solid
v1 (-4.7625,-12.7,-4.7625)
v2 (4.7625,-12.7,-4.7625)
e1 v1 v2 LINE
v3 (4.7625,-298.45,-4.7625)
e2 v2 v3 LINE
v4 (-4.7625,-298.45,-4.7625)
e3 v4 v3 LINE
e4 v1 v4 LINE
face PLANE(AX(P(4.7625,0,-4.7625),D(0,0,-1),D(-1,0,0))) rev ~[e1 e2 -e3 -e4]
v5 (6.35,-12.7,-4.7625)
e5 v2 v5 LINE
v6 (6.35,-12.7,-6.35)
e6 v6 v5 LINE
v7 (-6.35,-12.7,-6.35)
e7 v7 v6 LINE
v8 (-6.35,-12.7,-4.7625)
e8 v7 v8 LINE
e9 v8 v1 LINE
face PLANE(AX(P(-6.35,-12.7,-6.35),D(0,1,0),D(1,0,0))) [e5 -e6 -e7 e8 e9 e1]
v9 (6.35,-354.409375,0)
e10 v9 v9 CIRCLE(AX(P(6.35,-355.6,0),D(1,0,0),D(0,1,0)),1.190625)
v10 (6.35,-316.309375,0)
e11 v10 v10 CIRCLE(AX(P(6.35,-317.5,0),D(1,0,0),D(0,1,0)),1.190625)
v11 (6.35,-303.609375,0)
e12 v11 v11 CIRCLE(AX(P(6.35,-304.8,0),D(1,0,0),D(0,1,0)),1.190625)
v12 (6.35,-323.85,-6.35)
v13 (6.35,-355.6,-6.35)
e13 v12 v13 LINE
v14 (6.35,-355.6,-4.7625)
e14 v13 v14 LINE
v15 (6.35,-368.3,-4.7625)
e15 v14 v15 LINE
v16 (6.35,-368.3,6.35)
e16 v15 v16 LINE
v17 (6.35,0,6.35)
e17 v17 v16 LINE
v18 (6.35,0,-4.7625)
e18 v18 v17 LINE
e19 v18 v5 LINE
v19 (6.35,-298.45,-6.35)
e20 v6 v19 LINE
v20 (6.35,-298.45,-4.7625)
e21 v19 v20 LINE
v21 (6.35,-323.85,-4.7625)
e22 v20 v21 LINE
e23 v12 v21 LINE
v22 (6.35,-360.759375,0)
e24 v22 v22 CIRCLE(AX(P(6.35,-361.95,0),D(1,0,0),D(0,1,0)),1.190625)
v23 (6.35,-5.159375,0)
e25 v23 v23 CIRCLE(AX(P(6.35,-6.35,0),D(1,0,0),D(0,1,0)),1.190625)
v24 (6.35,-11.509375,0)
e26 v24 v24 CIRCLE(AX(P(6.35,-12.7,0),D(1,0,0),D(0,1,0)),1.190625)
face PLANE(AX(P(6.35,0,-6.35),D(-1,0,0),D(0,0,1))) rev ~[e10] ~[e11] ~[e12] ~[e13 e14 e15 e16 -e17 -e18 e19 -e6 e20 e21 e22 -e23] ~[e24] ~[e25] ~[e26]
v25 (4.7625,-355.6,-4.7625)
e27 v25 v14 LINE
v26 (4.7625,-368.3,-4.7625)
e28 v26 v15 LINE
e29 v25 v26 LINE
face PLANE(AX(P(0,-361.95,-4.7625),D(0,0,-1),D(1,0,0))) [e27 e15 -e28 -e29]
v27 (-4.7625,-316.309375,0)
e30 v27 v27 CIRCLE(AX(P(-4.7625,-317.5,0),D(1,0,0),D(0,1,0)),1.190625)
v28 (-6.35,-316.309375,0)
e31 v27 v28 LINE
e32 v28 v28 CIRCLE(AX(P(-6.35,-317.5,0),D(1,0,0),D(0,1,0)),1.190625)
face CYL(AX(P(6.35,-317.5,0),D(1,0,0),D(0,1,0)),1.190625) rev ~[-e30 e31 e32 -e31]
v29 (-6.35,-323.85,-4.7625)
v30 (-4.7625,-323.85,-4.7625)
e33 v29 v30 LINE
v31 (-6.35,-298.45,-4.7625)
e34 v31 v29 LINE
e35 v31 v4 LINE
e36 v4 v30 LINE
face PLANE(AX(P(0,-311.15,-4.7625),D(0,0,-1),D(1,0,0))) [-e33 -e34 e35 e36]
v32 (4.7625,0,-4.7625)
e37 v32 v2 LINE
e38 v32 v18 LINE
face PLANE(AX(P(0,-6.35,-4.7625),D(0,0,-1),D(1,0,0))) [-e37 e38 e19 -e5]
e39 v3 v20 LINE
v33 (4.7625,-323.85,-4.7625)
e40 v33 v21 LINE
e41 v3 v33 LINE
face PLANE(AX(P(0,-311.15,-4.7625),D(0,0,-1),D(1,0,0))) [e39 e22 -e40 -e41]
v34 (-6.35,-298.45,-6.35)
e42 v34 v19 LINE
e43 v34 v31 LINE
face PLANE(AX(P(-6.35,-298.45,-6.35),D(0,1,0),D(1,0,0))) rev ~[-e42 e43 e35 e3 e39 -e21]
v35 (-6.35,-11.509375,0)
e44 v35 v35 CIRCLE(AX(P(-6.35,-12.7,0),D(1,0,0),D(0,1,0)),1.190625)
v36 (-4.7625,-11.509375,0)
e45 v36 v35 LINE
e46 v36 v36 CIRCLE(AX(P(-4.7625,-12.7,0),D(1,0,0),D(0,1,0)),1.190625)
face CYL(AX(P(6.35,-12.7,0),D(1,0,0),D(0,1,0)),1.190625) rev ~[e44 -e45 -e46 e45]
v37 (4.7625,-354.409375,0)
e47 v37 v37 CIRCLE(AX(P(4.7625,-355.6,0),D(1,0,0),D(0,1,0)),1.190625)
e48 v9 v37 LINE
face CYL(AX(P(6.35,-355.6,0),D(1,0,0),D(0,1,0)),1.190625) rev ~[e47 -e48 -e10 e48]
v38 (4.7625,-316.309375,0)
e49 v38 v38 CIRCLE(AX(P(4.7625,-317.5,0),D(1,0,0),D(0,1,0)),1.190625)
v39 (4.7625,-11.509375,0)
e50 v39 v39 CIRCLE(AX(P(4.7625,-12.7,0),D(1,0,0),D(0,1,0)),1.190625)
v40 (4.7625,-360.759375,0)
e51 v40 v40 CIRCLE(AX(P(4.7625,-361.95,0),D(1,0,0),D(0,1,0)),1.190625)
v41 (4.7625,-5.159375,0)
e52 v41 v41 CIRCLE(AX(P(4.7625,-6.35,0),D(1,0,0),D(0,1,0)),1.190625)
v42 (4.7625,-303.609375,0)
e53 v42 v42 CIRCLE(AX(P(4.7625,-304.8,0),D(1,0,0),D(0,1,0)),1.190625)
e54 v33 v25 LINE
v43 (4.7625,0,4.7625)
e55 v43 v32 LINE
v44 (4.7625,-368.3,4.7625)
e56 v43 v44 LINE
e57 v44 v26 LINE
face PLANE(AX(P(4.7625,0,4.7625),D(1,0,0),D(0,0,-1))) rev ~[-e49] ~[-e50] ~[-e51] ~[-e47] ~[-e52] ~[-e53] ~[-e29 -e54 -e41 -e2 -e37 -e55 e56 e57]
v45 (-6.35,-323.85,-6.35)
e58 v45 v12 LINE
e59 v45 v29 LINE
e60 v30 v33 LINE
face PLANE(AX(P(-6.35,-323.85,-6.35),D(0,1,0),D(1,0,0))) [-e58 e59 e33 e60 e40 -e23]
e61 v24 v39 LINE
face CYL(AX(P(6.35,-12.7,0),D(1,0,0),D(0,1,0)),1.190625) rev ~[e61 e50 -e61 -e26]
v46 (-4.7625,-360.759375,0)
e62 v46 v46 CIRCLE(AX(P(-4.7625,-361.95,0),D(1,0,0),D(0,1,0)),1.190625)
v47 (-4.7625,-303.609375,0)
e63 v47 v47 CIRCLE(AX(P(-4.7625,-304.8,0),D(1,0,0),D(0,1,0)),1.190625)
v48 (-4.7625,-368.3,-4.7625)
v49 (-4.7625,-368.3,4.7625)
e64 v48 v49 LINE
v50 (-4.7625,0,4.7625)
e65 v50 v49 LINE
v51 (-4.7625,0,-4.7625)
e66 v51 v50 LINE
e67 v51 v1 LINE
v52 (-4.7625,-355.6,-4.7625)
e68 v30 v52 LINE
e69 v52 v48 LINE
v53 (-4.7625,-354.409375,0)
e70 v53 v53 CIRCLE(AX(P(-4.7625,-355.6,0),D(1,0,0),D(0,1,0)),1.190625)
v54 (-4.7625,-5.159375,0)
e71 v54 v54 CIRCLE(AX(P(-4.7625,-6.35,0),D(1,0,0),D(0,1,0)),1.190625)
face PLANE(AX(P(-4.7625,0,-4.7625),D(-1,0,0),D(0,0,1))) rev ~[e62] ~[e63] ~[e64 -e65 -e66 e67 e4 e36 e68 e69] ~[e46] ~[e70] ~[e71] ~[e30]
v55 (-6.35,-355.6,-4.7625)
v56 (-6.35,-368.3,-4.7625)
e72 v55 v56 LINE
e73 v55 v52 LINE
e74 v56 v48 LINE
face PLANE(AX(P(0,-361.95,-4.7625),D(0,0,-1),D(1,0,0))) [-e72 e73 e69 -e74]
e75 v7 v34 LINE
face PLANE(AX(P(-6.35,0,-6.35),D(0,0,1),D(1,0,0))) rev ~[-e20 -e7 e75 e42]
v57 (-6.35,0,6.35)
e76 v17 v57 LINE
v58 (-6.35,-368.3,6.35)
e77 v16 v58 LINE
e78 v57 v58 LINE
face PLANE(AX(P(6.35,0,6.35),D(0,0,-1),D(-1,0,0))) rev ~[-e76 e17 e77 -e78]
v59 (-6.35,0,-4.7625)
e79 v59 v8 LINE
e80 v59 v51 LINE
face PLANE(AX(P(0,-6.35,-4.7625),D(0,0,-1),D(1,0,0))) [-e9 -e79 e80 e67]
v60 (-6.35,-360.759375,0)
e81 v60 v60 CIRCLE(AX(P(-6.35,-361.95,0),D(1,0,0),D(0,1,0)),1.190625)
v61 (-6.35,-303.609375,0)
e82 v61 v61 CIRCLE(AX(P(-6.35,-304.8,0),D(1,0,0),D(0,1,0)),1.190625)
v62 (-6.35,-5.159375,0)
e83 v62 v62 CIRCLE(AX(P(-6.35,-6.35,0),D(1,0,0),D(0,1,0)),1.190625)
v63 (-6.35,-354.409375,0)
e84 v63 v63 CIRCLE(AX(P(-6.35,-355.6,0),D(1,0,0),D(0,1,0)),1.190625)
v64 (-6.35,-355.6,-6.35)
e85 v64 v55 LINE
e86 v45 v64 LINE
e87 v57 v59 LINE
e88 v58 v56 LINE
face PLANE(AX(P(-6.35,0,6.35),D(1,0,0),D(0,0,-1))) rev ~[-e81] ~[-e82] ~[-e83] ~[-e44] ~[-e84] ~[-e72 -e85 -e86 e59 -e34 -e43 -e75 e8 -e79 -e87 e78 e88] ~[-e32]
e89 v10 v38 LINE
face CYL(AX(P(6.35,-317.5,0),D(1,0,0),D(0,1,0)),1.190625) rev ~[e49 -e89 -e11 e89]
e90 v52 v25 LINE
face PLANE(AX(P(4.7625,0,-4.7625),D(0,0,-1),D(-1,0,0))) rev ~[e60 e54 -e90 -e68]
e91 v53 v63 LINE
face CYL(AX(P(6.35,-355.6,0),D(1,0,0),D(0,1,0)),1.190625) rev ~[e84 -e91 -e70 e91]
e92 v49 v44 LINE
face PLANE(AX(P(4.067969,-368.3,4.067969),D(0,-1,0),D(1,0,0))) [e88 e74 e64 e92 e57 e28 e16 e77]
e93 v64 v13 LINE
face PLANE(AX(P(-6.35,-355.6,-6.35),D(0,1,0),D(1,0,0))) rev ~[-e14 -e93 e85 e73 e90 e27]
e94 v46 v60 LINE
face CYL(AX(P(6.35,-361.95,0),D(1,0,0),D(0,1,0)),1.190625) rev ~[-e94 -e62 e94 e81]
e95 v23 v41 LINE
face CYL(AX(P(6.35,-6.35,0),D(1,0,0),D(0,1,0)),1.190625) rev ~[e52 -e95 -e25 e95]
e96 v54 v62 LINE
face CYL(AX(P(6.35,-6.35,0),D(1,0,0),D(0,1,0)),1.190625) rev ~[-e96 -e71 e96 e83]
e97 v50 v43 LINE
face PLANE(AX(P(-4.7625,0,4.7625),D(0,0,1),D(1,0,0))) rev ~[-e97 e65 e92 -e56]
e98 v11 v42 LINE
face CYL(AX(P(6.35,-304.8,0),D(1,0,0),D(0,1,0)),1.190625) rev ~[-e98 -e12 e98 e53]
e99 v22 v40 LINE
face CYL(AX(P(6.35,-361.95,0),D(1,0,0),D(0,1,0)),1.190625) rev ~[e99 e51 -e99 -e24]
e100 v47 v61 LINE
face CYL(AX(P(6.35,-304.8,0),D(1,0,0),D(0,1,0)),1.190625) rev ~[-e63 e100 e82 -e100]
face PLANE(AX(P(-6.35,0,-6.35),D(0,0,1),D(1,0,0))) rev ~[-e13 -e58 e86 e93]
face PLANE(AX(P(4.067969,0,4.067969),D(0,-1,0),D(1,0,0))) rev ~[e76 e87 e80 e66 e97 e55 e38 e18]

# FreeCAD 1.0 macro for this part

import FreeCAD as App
import Part
import Sketcher

V = App.Vector
Q = App.Units.Quantity


def add_polygon(sketch, points):
    """Adds a closed chain of lines whose ends are joined by coincident constraints."""
    first, n = sketch.GeometryCount, len(points)
    for a, b in zip(points, points[1:] + points[:1]):
        sketch.addGeometry(Part.LineSegment(App.Vector(*a, 0), App.Vector(*b, 0)), False)
    for i in range(n):
        sketch.addConstraint(Sketcher.Constraint("Coincident", first + i, 2, first + (i + 1) % n, 1))

doc = App.newDocument("Part")
body = doc.addObject("PartDesign::Body", "Body")

# Sketch on XZ plane
sketch1 = doc.addObject("Sketcher::SketchObject", "Sketch")
body.addObject(sketch1)
sketch1.AttachmentSupport = (doc.XZ_Plane, [""])
sketch1.MapMode = "FlatFace"
add_polygon(sketch1, [(6.35, 6.35), (-6.35, 6.35), (-6.35, -6.35), (6.35, -6.35)])  # lines 0-3
add_polygon(sketch1, [(4.7625, 4.7625), (4.7625, -4.7625), (-4.7625, -4.7625), (-4.7625, 4.7625)])  # lines 4-7
sketch1.addConstraint(Sketcher.Constraint("Horizontal", 0))
sketch1.addConstraint(Sketcher.Constraint("Vertical", 1))
sketch1.addConstraint(Sketcher.Constraint("Horizontal", 2))
sketch1.addConstraint(Sketcher.Constraint("Vertical", 3))
sketch1.addConstraint(Sketcher.Constraint("Vertical", 4))
sketch1.addConstraint(Sketcher.Constraint("Horizontal", 5))
sketch1.addConstraint(Sketcher.Constraint("Vertical", 6))
sketch1.addConstraint(Sketcher.Constraint("Horizontal", 7))
sketch1.addConstraint(Sketcher.Constraint("Symmetric", 0, 2, 2, 2, -1, 1))
sketch1.addConstraint(Sketcher.Constraint("Symmetric", 4, 2, 6, 2, -1, 1))
sketch1.addConstraint(Sketcher.Constraint("Equal", 2, 1))
sketch1.addConstraint(Sketcher.Constraint("Equal", 7, 4))
sketch1.addConstraint(Sketcher.Constraint("DistanceX", 0, 2, 0, 1, Q("0.5 in")))
sketch1.addConstraint(Sketcher.Constraint("DistanceX", 5, 2, 5, 1, Q("0.375 in")))
pad1 = doc.addObject("PartDesign::Pad", "Pad")
body.addObject(pad1)
pad1.Profile = sketch1
pad1.Length = Q("14.5 in")

# Sketch on YZ plane
sketch2 = doc.addObject("Sketcher::SketchObject", "Sketch001")
body.addObject(sketch2)
sketch2.AttachmentSupport = (doc.YZ_Plane, [""])
sketch2.MapMode = "FlatFace"
sketch2.AttachmentOffset = App.Placement(V(0, 0, 0.25 * 25.4), App.Rotation())
sketch2.addGeometry(Part.Circle(V(-317.5, 0, 0), V(0, 0, 1), 1.190625), False)
sketch2.addGeometry(Part.Circle(V(-304.8, 0, 0), V(0, 0, 1), 1.190625), False)
sketch2.addGeometry(Part.Circle(V(-361.95, 0, 0), V(0, 0, 1), 1.190625), False)
sketch2.addGeometry(Part.Circle(V(-355.6, 0, 0), V(0, 0, 1), 1.190625), False)
sketch2.addGeometry(Part.Circle(V(-6.35, 0, 0), V(0, 0, 1), 1.190625), False)
sketch2.addGeometry(Part.Circle(V(-12.7, 0, 0), V(0, 0, 1), 1.190625), False)
sketch2.addConstraint(Sketcher.Constraint("Equal", 0, 1))
sketch2.addConstraint(Sketcher.Constraint("Equal", 1, 2))
sketch2.addConstraint(Sketcher.Constraint("Equal", 2, 3))
sketch2.addConstraint(Sketcher.Constraint("Equal", 3, 4))
sketch2.addConstraint(Sketcher.Constraint("Equal", 4, 5))
sketch2.addConstraint(Sketcher.Constraint("PointOnObject", 0, 3, -1))
sketch2.addConstraint(Sketcher.Constraint("PointOnObject", 1, 3, -1))
sketch2.addConstraint(Sketcher.Constraint("PointOnObject", 2, 3, -1))
sketch2.addConstraint(Sketcher.Constraint("PointOnObject", 3, 3, -1))
sketch2.addConstraint(Sketcher.Constraint("PointOnObject", 4, 3, -1))
sketch2.addConstraint(Sketcher.Constraint("PointOnObject", 5, 3, -1))
sketch2.addConstraint(Sketcher.Constraint("Diameter", 0, Q("0.09375 in")))
sketch2.addConstraint(Sketcher.Constraint("DistanceX", 1, 3, -1, 1, Q("12 in")))
sketch2.addConstraint(Sketcher.Constraint("DistanceX", 3, 3, -1, 1, Q("14 in")))
sketch2.addConstraint(Sketcher.Constraint("DistanceX", 2, 3, 4, 3, Q("14 in")))
sketch2.addConstraint(Sketcher.Constraint("DistanceX", 0, 3, 5, 3, Q("12 in")))
sketch2.addConstraint(Sketcher.Constraint("DistanceX", 0, 3, -1, 1, Q("12.5 in")))
sketch2.addConstraint(Sketcher.Constraint("DistanceX", 2, 3, -1, 1, Q("14.25 in")))
pocket1 = doc.addObject("PartDesign::Pocket", "Pocket")
body.addObject(pocket1)
pocket1.Profile = sketch2
pocket1.Type = "ThroughAll"

# Sketch on XY plane
sketch3 = doc.addObject("Sketcher::SketchObject", "Sketch002")
body.addObject(sketch3)
sketch3.AttachmentSupport = (doc.XY_Plane, [""])
sketch3.MapMode = "FlatFace"
sketch3.AttachmentOffset = App.Placement(V(0, 0, -0.25 * 25.4), App.Rotation())
add_polygon(sketch3, [(-6.35, -323.85), (-6.35, -298.45), (6.35, -298.45), (6.35, -323.85)])  # lines 0-3
add_polygon(sketch3, [(-6.35, -368.3), (-6.35, -355.6), (6.35, -355.6), (6.35, -368.3)])  # lines 4-7
add_polygon(sketch3, [(-6.35, -12.7), (-6.35, 0), (6.35, 0), (6.35, -12.7)])  # lines 8-11
sketch3.addConstraint(Sketcher.Constraint("Vertical", 0))
sketch3.addConstraint(Sketcher.Constraint("Horizontal", 1))
sketch3.addConstraint(Sketcher.Constraint("Vertical", 2))
sketch3.addConstraint(Sketcher.Constraint("Horizontal", 3))
sketch3.addConstraint(Sketcher.Constraint("Vertical", 4))
sketch3.addConstraint(Sketcher.Constraint("Horizontal", 5))
sketch3.addConstraint(Sketcher.Constraint("Vertical", 6))
sketch3.addConstraint(Sketcher.Constraint("Horizontal", 7))
sketch3.addConstraint(Sketcher.Constraint("Vertical", 8))
sketch3.addConstraint(Sketcher.Constraint("Horizontal", 9))
sketch3.addConstraint(Sketcher.Constraint("Vertical", 10))
sketch3.addConstraint(Sketcher.Constraint("Horizontal", 11))
sketch3.addConstraint(Sketcher.Constraint("Symmetric", 8, 2, 9, 2, -1, 1))
sketch3.addConstraint(Sketcher.Constraint("Vertical", 3, 2, 4, 2))
sketch3.addConstraint(Sketcher.Constraint("Vertical", 2, 2, 5, 2))
sketch3.addConstraint(Sketcher.Constraint("Vertical", 7, 2, 8, 2))
sketch3.addConstraint(Sketcher.Constraint("Vertical", 6, 2, 9, 2))
sketch3.addConstraint(Sketcher.Constraint("Equal", 11, 4))
sketch3.addConstraint(Sketcher.Constraint("Equal", 6, 8))
sketch3.addConstraint(Sketcher.Constraint("DistanceY", 0, 1, 0, 2, Q("1 in")))
sketch3.addConstraint(Sketcher.Constraint("DistanceX", 1, 1, 1, 2, Q("0.5 in")))
sketch3.addConstraint(Sketcher.Constraint("DistanceY", 4, 2, -1, 1, Q("14 in")))
sketch3.addConstraint(Sketcher.Constraint("DistanceY", 0, 2, -1, 1, Q("11.75 in")))
pocket2 = doc.addObject("PartDesign::Pocket", "Pocket001")
body.addObject(pocket2)
pocket2.Profile = sketch3
pocket2.Length = Q("0.0625 in")
pocket2.Reversed = True

doc.recompute()
